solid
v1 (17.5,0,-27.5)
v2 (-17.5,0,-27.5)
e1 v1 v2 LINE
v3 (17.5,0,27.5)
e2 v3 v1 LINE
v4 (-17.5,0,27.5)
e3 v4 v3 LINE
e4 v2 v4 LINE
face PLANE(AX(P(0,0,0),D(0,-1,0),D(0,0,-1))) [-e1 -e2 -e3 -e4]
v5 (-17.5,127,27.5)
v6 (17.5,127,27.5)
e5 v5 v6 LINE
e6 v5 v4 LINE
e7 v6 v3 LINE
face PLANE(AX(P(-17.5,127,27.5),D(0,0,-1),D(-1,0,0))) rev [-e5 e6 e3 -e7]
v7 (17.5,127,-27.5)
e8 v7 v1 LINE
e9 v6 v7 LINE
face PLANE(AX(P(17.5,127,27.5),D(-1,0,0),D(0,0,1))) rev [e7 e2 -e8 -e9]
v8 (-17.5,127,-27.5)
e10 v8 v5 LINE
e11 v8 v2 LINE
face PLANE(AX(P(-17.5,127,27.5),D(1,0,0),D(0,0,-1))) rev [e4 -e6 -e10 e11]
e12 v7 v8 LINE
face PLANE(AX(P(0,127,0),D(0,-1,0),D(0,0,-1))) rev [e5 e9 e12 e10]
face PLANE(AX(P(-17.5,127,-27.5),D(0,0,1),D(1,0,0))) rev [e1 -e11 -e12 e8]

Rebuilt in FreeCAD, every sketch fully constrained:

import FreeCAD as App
import Part
import Sketcher
Q = App.Units.Quantity


def add_polygon(sketch, points):
    """Adds a closed chain of lines whose ends are joined by coincident constraints."""
    first, n = sketch.GeometryCount, len(points)
    for a, b in zip(points, points[1:] + points[:1]):
        sketch.addGeometry(Part.LineSegment(App.Vector(*a, 0), App.Vector(*b, 0)), False)
    for i in range(n):
        sketch.addConstraint(Sketcher.Constraint("Coincident", first + i, 2, first + (i + 1) % n, 1))

doc = App.newDocument("Part")
params = doc.addObject("Spreadsheet::Sheet", "Params")
for row, (alias, value) in enumerate([
    ("sketch1_width", "35 mm"),
    ("sketch1_height", "55 mm"),
    ("pad1_length", "127 mm"),
], start=1):
    params.set(f"A{row}", alias)
    params.set(f"B{row}", "=" + value)
    params.setAlias(f"B{row}", alias)

body = doc.addObject("PartDesign::Body", "Body")

# Sketch on XZ plane
sketch1 = doc.addObject("Sketcher::SketchObject", "Sketch")
body.addObject(sketch1)
sketch1.AttachmentSupport = (doc.XZ_Plane, [""])
sketch1.MapMode = "FlatFace"
add_polygon(sketch1, [(-17.5, -27.5), (-17.5, 27.5), (17.5, 27.5), (17.5, -27.5)])  # lines 0-3
sketch1.addConstraint([
    Sketcher.Constraint("Vertical", 0),
    Sketcher.Constraint("Horizontal", 1),
    Sketcher.Constraint("Vertical", 2),
    Sketcher.Constraint("Horizontal", 3),
    Sketcher.Constraint("Symmetric", 0, 2, 2, 2, -1, 1),
    Sketcher.Constraint("DistanceX", 1, 1, 1, 2, Q("35 mm")),
    Sketcher.Constraint("DistanceY", 0, 1, 0, 2, Q("55 mm")),
])
sketch1.setExpression("Constraints[9]", "Params.sketch1_width")
sketch1.setExpression("Constraints[10]", "Params.sketch1_height")
pad1 = doc.addObject("PartDesign::Pad", "Pad")
body.addObject(pad1)
pad1.Profile = sketch1
pad1.setExpression("Length", "Params.pad1_length")
pad1.Reversed = True

doc.recompute()
